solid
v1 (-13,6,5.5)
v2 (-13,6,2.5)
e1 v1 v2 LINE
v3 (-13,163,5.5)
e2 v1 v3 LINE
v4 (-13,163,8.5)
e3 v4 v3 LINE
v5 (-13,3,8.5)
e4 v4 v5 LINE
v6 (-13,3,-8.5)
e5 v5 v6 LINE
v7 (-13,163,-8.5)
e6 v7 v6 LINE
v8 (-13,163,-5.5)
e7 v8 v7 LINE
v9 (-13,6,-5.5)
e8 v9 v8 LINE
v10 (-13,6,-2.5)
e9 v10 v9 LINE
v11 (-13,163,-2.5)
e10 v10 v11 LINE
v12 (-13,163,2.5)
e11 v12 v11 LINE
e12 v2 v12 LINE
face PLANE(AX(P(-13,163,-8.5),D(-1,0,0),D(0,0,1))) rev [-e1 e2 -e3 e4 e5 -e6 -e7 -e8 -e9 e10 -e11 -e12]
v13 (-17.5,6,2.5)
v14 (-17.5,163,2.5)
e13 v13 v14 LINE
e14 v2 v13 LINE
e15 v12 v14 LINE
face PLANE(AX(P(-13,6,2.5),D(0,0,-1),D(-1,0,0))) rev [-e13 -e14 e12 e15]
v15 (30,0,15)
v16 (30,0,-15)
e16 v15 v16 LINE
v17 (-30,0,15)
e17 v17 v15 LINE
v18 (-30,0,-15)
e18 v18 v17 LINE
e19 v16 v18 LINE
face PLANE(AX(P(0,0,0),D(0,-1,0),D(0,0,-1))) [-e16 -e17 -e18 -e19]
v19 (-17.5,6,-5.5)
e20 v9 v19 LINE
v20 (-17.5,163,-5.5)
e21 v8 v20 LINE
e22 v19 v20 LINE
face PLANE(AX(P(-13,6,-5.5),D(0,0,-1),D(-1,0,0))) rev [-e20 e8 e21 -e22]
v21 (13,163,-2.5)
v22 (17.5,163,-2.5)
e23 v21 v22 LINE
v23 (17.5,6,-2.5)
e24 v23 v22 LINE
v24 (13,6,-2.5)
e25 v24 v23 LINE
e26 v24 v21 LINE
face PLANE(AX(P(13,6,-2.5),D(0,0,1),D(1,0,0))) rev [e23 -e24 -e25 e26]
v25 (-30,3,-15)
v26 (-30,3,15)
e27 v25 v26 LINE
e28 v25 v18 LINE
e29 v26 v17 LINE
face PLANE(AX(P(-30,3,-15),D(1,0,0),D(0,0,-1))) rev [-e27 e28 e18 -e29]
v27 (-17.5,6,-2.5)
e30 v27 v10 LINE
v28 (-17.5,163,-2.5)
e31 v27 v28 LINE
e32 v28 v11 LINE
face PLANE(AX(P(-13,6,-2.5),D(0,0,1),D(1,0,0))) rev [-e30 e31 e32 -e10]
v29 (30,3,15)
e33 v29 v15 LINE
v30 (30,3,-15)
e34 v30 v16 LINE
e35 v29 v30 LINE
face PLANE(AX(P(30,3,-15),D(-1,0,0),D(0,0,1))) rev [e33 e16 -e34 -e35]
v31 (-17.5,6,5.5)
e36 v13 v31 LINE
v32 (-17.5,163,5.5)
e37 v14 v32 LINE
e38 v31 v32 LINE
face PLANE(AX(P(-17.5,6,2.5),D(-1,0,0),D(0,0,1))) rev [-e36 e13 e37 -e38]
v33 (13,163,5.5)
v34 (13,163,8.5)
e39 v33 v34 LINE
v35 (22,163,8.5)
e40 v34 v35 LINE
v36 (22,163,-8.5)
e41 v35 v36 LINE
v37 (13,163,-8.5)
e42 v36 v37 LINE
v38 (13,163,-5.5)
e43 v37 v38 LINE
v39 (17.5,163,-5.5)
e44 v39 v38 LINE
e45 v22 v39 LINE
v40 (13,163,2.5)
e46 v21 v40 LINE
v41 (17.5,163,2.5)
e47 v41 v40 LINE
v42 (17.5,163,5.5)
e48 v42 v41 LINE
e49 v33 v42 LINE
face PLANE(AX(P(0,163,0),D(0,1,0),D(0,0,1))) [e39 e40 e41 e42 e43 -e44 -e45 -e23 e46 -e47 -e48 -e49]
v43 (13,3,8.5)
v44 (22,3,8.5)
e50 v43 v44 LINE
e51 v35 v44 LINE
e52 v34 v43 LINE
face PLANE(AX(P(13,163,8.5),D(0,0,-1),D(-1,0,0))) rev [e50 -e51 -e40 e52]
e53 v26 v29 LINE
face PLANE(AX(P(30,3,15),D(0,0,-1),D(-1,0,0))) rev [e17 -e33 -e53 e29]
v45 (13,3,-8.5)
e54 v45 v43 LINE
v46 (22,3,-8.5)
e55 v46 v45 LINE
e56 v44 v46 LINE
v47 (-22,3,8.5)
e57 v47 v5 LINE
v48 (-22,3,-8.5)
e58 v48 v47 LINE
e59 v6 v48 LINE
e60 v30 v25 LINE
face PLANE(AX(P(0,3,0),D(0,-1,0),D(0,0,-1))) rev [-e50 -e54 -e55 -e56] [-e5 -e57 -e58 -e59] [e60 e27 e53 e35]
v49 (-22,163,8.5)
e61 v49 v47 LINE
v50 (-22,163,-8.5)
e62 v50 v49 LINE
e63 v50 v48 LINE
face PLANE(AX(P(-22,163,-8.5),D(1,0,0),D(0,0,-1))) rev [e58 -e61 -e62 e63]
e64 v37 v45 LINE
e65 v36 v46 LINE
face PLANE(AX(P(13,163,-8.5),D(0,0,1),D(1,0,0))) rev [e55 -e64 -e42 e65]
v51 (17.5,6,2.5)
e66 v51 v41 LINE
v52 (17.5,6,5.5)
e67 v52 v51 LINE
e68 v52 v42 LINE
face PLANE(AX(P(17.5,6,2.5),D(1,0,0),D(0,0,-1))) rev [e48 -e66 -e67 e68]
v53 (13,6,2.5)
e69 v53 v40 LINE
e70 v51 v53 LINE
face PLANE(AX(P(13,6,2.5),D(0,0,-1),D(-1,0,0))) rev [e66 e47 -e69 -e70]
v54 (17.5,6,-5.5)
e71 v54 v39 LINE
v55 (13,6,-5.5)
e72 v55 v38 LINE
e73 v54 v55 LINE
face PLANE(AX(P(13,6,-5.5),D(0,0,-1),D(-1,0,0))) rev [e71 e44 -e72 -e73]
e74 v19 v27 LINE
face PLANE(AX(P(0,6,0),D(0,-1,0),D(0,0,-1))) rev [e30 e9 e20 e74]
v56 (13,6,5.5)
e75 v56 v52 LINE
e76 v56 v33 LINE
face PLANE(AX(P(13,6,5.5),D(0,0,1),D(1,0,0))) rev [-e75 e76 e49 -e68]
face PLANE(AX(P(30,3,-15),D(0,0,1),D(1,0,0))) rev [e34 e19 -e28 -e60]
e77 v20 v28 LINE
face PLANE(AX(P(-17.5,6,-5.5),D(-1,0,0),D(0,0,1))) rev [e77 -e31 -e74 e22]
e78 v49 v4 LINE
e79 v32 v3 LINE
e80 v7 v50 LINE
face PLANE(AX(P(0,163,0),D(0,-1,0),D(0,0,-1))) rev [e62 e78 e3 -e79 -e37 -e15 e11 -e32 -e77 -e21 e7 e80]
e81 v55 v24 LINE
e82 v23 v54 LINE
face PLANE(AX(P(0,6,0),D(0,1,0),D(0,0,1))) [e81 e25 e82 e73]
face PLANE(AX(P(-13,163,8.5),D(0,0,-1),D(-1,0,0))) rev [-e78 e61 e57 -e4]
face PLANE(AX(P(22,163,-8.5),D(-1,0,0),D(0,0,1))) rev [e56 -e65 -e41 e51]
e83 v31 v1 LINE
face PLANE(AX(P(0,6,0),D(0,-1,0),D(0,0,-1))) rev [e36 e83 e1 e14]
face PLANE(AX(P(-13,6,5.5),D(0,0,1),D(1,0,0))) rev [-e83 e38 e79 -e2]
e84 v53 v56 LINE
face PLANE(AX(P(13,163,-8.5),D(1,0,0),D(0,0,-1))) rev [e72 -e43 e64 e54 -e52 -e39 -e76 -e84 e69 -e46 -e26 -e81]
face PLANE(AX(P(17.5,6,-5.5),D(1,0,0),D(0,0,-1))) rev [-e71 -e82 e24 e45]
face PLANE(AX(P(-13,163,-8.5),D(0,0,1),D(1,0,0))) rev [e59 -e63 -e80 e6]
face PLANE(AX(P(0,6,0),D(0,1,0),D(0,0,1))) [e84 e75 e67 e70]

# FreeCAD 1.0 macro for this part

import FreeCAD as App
import Part
import Sketcher

V = App.Vector
Q = App.Units.Quantity


def add_polygon(sketch, points):
    """Adds a closed chain of lines whose ends are joined by coincident constraints."""
    first, n = sketch.GeometryCount, len(points)
    for a, b in zip(points, points[1:] + points[:1]):
        sketch.addGeometry(Part.LineSegment(App.Vector(*a, 0), App.Vector(*b, 0)), False)
    for i in range(n):
        sketch.addConstraint(Sketcher.Constraint("Coincident", first + i, 2, first + (i + 1) % n, 1))

doc = App.newDocument("Part")
body = doc.addObject("PartDesign::Body", "Body")

# Sketch on XZ plane
sketch1 = body.newObject("Sketcher::SketchObject", "Sketch")
sketch1.AttachmentSupport = (doc.getObject("XZ_Plane"), [""])
sketch1.MapMode = "FlatFace"
add_polygon(sketch1, [(-30, -15), (-30, 15), (30, 15), (30, -15)])  # lines 0-3
sketch1.addConstraint([
    Sketcher.Constraint("Vertical", 0),
    Sketcher.Constraint("Horizontal", 1),
    Sketcher.Constraint("Vertical", 2),
    Sketcher.Constraint("Horizontal", 3),
    Sketcher.Constraint("Symmetric", 0, 2, 2, 2, -1, 1),
    Sketcher.Constraint("DistanceX", 1, 1, 1, 2, Q("60 mm")),
    Sketcher.Constraint("DistanceY", 0, 1, 0, 2, Q("30 mm")),
])
pad1 = body.newObject("PartDesign::Pad", "Pad")
pad1.Profile = sketch1
pad1.Length = 3
pad1.Reversed = True

# Sketch on XZ plane
sketch2 = body.newObject("Sketcher::SketchObject", "Sketch001")
sketch2.AttachmentSupport = (doc.getObject("XZ_Plane"), [""])
sketch2.MapMode = "FlatFace"
sketch2.AttachmentOffset = App.Placement(V(0, 0, -3), App.Rotation())
add_polygon(sketch2, [(13, -8), (13, 8), (22, 8), (22, -8)])  # lines 0-3
add_polygon(sketch2, [(-22, -8), (-22, 8), (-13, 8), (-13, -8)])  # lines 4-7
sketch2.addConstraint([
    Sketcher.Constraint("Vertical", 0),
    Sketcher.Constraint("Horizontal", 1),
    Sketcher.Constraint("Vertical", 2),
    Sketcher.Constraint("Horizontal", 3),
    Sketcher.Constraint("Vertical", 4),
    Sketcher.Constraint("Horizontal", 5),
    Sketcher.Constraint("Vertical", 6),
    Sketcher.Constraint("Horizontal", 7),
    Sketcher.Constraint("Symmetric", 2, 2, 4, 2, -1, 1),
    Sketcher.Constraint("Symmetric", 0, 2, 6, 2, -1, 1),
    Sketcher.Constraint("Horizontal", 1, 2, 4, 2),
    Sketcher.Constraint("DistanceX", 1, 1, 1, 2, Q("9 mm")),
    Sketcher.Constraint("DistanceY", 0, 1, 0, 2, Q("17 mm")),
    Sketcher.Constraint("DistanceX", -1, 1, 0, 2, Q("13 mm")),
])
pad2 = body.newObject("PartDesign::Pad", "Pad001")
pad2.Profile = sketch2
pad2.Length = 160
pad2.Reversed = True

# Sketch on XZ plane
sketch3 = body.newObject("Sketcher::SketchObject", "Sketch002")
sketch3.AttachmentSupport = (doc.getObject("XZ_Plane"), [""])
sketch3.MapMode = "FlatFace"
sketch3.AttachmentOffset = App.Placement(V(0, 0, -163), App.Rotation())
add_polygon(sketch3, [(-17.5, -5.5), (-17.5, -2.5), (-13, -2.5), (-13, -5.5)])  # lines 0-3
add_polygon(sketch3, [(-17.5, 2.5), (-17.5, 5.5), (-13, 5.5), (-13, 2.5)])  # lines 4-7
add_polygon(sketch3, [(13, 2.5), (13, 5.5), (17.5, 5.5), (17.5, 2.5)])  # lines 8-11
add_polygon(sketch3, [(13, -5.5), (13, -2.5), (17.5, -2.5), (17.5, -5.5)])  # lines 12-15
sketch3.addConstraint([
    Sketcher.Constraint("Vertical", 0),
    Sketcher.Constraint("Horizontal", 1),
    Sketcher.Constraint("Vertical", 2),
    Sketcher.Constraint("Horizontal", 3),
    Sketcher.Constraint("Vertical", 4),
    Sketcher.Constraint("Horizontal", 5),
    Sketcher.Constraint("Vertical", 6),
    Sketcher.Constraint("Horizontal", 7),
    Sketcher.Constraint("Vertical", 8),
    Sketcher.Constraint("Horizontal", 9),
    Sketcher.Constraint("Vertical", 10),
    Sketcher.Constraint("Horizontal", 11),
    Sketcher.Constraint("Vertical", 12),
    Sketcher.Constraint("Horizontal", 13),
    Sketcher.Constraint("Vertical", 14),
    Sketcher.Constraint("Horizontal", 15),
    Sketcher.Constraint("Symmetric", 2, 2, 8, 2, -1, 1),
    Sketcher.Constraint("Symmetric", 0, 2, 10, 2, -1, 1),
    Sketcher.Constraint("Symmetric", 6, 2, 12, 2, -1, 1),
    Sketcher.Constraint("Symmetric", 4, 2, 14, 2, -1, 1),
    Sketcher.Constraint("Symmetric", 5, 2, 8, 2, -2),
    Sketcher.Constraint("Symmetric", 7, 2, 10, 2, -2),
    Sketcher.Constraint("DistanceY", 0, 1, 0, 2, Q("3 mm")),
    Sketcher.Constraint("DistanceX", 1, 1, 1, 2, Q("4.5 mm")),
    Sketcher.Constraint("DistanceX", 1, 2, -1, 1, Q("13 mm")),
    Sketcher.Constraint("DistanceY", 0, 2, 4, 2, Q("8 mm")),
])
pocket1 = body.newObject("PartDesign::Pocket", "Pocket")
pocket1.Profile = sketch3
pocket1.Length = 157
pocket1.Reversed = True

doc.recompute()
